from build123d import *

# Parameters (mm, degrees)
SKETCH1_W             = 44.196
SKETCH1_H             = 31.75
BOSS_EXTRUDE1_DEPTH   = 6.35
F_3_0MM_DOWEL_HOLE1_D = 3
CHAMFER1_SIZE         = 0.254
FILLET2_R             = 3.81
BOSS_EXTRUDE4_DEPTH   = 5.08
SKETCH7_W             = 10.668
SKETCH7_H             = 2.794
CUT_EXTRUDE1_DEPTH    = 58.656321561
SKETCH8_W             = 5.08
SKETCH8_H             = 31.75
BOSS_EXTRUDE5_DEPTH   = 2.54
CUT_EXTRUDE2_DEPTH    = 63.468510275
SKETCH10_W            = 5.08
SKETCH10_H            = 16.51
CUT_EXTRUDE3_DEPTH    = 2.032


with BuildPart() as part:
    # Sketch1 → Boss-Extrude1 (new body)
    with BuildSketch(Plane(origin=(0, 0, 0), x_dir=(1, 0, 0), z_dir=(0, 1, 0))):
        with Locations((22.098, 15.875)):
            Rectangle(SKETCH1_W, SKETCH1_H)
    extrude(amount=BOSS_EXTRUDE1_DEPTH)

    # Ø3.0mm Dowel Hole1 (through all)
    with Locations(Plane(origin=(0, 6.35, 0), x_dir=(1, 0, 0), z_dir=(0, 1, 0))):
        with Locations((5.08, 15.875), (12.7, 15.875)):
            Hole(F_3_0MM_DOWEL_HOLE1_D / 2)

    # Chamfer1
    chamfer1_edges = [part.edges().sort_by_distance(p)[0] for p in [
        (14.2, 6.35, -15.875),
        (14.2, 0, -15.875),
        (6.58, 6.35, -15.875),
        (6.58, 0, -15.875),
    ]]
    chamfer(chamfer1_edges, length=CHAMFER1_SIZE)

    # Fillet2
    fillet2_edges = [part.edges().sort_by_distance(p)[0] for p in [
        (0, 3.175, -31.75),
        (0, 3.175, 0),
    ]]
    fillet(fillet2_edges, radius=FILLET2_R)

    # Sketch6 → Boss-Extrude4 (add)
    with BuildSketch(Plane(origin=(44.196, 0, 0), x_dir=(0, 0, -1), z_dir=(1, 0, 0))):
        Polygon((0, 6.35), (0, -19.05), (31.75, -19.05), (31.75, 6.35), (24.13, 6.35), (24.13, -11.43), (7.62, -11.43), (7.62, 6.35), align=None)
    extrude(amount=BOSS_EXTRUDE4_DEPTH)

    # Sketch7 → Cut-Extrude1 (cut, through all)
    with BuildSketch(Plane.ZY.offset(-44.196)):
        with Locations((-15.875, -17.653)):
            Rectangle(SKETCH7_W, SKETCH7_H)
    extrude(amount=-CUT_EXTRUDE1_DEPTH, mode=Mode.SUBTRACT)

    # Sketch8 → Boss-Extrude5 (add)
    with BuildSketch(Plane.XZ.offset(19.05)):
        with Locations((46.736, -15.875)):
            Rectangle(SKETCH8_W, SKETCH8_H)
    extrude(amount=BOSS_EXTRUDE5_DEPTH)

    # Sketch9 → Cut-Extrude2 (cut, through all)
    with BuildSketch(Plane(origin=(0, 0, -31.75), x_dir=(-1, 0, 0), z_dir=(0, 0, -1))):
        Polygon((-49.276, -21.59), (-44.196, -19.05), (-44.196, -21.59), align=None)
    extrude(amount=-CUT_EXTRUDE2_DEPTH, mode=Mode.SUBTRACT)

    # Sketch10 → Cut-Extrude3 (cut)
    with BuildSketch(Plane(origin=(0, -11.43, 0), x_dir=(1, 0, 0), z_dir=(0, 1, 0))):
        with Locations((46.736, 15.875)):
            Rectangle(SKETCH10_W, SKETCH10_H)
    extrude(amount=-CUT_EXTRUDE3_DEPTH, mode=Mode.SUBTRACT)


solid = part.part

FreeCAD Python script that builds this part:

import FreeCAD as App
import Part
import Sketcher

V = App.Vector
Q = App.Units.Quantity


def edges_at(feature, points):
    """Names of the edges that pass closest to the given points."""
    edges = feature.Shape.Edges
    near = lambda p: min(range(len(edges)), key=lambda i: edges[i].distToShape(Part.Vertex(*p))[0])
    return sorted({f"Edge{near(p) + 1}" for p in points})


def add_polygon(sketch, points):
    """Adds a closed chain of lines whose ends are joined by coincident constraints."""
    first, n = sketch.GeometryCount, len(points)
    for a, b in zip(points, points[1:] + points[:1]):
        sketch.addGeometry(Part.LineSegment(App.Vector(*a, 0), App.Vector(*b, 0)), False)
    for i in range(n):
        sketch.addConstraint(Sketcher.Constraint("Coincident", first + i, 2, first + (i + 1) % n, 1))

doc = App.newDocument("Part")
body = doc.addObject("PartDesign::Body", "Body")

sketch1 = doc.addObject("Sketcher::SketchObject", "Sketch")
body.addObject(sketch1)
sketch1.AttachmentSupport = (doc.XZ_Plane, [""])
sketch1.MapMode = "FlatFace"
add_polygon(sketch1, [(0, -31.75), (0, 0), (44.196, 0), (44.196, -31.75)])
sketch1.addConstraint(Sketcher.Constraint("Vertical", 0))
sketch1.addConstraint(Sketcher.Constraint("Horizontal", 1))
sketch1.addConstraint(Sketcher.Constraint("Vertical", 2))
sketch1.addConstraint(Sketcher.Constraint("Horizontal", 3))
sketch1.addConstraint(Sketcher.Constraint("Coincident", 0, 2, -1, 1))
sketch1.addConstraint(Sketcher.Constraint("DistanceX", 1, 1, 1, 2, Q("1.74 in")))
sketch1.addConstraint(Sketcher.Constraint("DistanceY", 0, 1, 0, 2, Q("1.25 in")))
pad1 = doc.addObject("PartDesign::Pad", "Pad")
body.addObject(pad1)
pad1.Profile = sketch1
pad1.Length = Q("0.25 in")
pad1.Reversed = True

sketch2 = doc.addObject("Sketcher::SketchObject", "Sketch001")
body.addObject(sketch2)
sketch2.AttachmentSupport = (doc.XZ_Plane, [""])
sketch2.MapMode = "FlatFace"
sketch2.AttachmentOffset = App.Placement(V(0, 0, -0.25 * 25.4), App.Rotation())
sketch2.addGeometry(Part.Circle(V(5.08, -15.875, 0), V(0, 0, 1), 1.5), False)
sketch2.addGeometry(Part.Circle(V(12.7, -15.875, 0), V(0, 0, 1), 1.5), False)
sketch2.addConstraint(Sketcher.Constraint("Equal", 0, 1))
sketch2.addConstraint(Sketcher.Constraint("Horizontal", 0, 3, 1, 3))
sketch2.addConstraint(Sketcher.Constraint("DistanceX", -1, 1, 0, 3, Q("0.2 in")))
sketch2.addConstraint(Sketcher.Constraint("DistanceX", -1, 1, 1, 3, Q("0.5 in")))
sketch2.addConstraint(Sketcher.Constraint("Diameter", 0, Q("3 mm")))
sketch2.addConstraint(Sketcher.Constraint("DistanceY", 0, 3, -1, 1, Q("0.625 in")))
doc.recompute()
hole = doc.addObject("PartDesign::Hole", "Hole")
body.addObject(hole)
hole.Profile = sketch2
hole.ThreadType = "None"
hole.Diameter = 3
hole.DepthType = "ThroughAll"
hole.Reversed = True
doc.recompute()

chamfer = doc.addObject("PartDesign::Chamfer", "Chamfer")
body.addObject(chamfer)
chamfer.Base = (hole, edges_at(hole, [
    (14.2, 6.35, -15.875),
    (14.2, 0, -15.875),
    (6.58, 6.35, -15.875),
    (6.58, 0, -15.875),
]))
chamfer.Size = Q("0.01 in")
doc.recompute()

fillet = doc.addObject("PartDesign::Fillet", "Fillet")
body.addObject(fillet)
fillet.Base = (chamfer, edges_at(chamfer, [(0, 3.175, -31.75), (0, 3.175, 0)]))
fillet.Radius = Q("0.15 in")

sketch3 = doc.addObject("Sketcher::SketchObject", "Sketch002")
body.addObject(sketch3)
sketch3.AttachmentSupport = (doc.YZ_Plane, [""])
sketch3.MapMode = "FlatFace"
sketch3.AttachmentOffset = App.Placement(V(0, 0, 1.74 * 25.4), App.Rotation())
add_polygon(sketch3, [(6.35, 0), (-19.05, 0), (-19.05, -31.75), (6.35, -31.75), (6.35, -24.13), (-11.43, -24.13), (-11.43, -7.62), (6.35, -7.62)])
sketch3.addConstraint(Sketcher.Constraint("Horizontal", 0))
sketch3.addConstraint(Sketcher.Constraint("Vertical", 1))
sketch3.addConstraint(Sketcher.Constraint("Horizontal", 2))
sketch3.addConstraint(Sketcher.Constraint("Vertical", 3))
sketch3.addConstraint(Sketcher.Constraint("Horizontal", 4))
sketch3.addConstraint(Sketcher.Constraint("Vertical", 5))
sketch3.addConstraint(Sketcher.Constraint("Horizontal", 6))
sketch3.addConstraint(Sketcher.Constraint("Vertical", 7))
sketch3.addConstraint(Sketcher.Constraint("PointOnObject", 0, 2, -1))
sketch3.addConstraint(Sketcher.Constraint("Vertical", 3, 2, 6, 2))
sketch3.addConstraint(Sketcher.Constraint("Equal", 3, 7))
sketch3.addConstraint(Sketcher.Constraint("DistanceX", 0, 2, 0, 1, Q("1 in")))
sketch3.addConstraint(Sketcher.Constraint("DistanceX", 4, 2, 4, 1, Q("0.7 in")))
sketch3.addConstraint(Sketcher.Constraint("DistanceY", 3, 1, 3, 2, Q("0.3 in")))
sketch3.addConstraint(Sketcher.Constraint("DistanceY", 1, 2, 1, 1, Q("1.25 in")))
sketch3.addConstraint(Sketcher.Constraint("DistanceX", 0, 2, -1, 1, Q("0.75 in")))
pad2 = doc.addObject("PartDesign::Pad", "Pad001")
body.addObject(pad2)
pad2.Profile = sketch3
pad2.Length = Q("0.2 in")

sketch4 = doc.addObject("Sketcher::SketchObject", "Sketch003")
body.addObject(sketch4)
sketch4.AttachmentSupport = (doc.YZ_Plane, [""])
sketch4.MapMode = "FlatFace"
sketch4.AttachmentOffset = App.Placement(V(0, 0, 1.74 * 25.4), App.Rotation())
add_polygon(sketch4, [(-16.256, -21.209), (-19.05, -21.209), (-19.05, -10.541), (-16.256, -10.541)])
sketch4.addConstraint(Sketcher.Constraint("Horizontal", 0))
sketch4.addConstraint(Sketcher.Constraint("Vertical", 1))
sketch4.addConstraint(Sketcher.Constraint("Horizontal", 2))
sketch4.addConstraint(Sketcher.Constraint("Vertical", 3))
sketch4.addConstraint(Sketcher.Constraint("DistanceX", 0, 2, 0, 1, Q("0.11 in")))
sketch4.addConstraint(Sketcher.Constraint("DistanceY", 1, 1, 1, 2, Q("0.42 in")))
sketch4.addConstraint(Sketcher.Constraint("DistanceX", 0, 2, -1, 1, Q("0.75 in")))
sketch4.addConstraint(Sketcher.Constraint("DistanceY", 0, 2, -1, 1, Q("0.835 in")))
pocket1 = doc.addObject("PartDesign::Pocket", "Pocket")
body.addObject(pocket1)
pocket1.Profile = sketch4
pocket1.Type = "ThroughAll"
pocket1.Reversed = True

sketch5 = doc.addObject("Sketcher::SketchObject", "Sketch004")
body.addObject(sketch5)
sketch5.AttachmentSupport = (doc.XZ_Plane, [""])
sketch5.MapMode = "FlatFace"
sketch5.AttachmentOffset = App.Placement(V(0, 0, 0.75 * 25.4), App.Rotation())
add_polygon(sketch5, [(44.196, 0), (44.196, -31.75), (49.276, -31.75), (49.276, 0)])
sketch5.addConstraint(Sketcher.Constraint("Vertical", 0))
sketch5.addConstraint(Sketcher.Constraint("Horizontal", 1))
sketch5.addConstraint(Sketcher.Constraint("Vertical", 2))
sketch5.addConstraint(Sketcher.Constraint("Horizontal", 3))
sketch5.addConstraint(Sketcher.Constraint("PointOnObject", 2, 2, -1))
sketch5.addConstraint(Sketcher.Constraint("DistanceX", 1, 1, 1, 2, Q("0.2 in")))
sketch5.addConstraint(Sketcher.Constraint("DistanceY", 0, 2, 0, 1, Q("1.25 in")))
sketch5.addConstraint(Sketcher.Constraint("DistanceX", -1, 1, 0, 2, Q("1.74 in")))
pad3 = doc.addObject("PartDesign::Pad", "Pad002")
body.addObject(pad3)
pad3.Profile = sketch5
pad3.Length = Q("0.1 in")

sketch6 = doc.addObject("Sketcher::SketchObject", "Sketch005")
body.addObject(sketch6)
sketch6.AttachmentSupport = (doc.XY_Plane, [""])
sketch6.MapMode = "FlatFace"
sketch6.AttachmentOffset = App.Placement(V(0, 0, -1.25 * 25.4), App.Rotation())
add_polygon(sketch6, [(44.196, -19.05), (49.276, -21.59), (44.196, -21.59)])
sketch6.addConstraint(Sketcher.Constraint("Horizontal", 1))
sketch6.addConstraint(Sketcher.Constraint("Vertical", 2))
sketch6.addConstraint(Sketcher.Constraint("DistanceX", 1, 2, 1, 1, Q("0.2 in")))
sketch6.addConstraint(Sketcher.Constraint("DistanceY", 2, 1, 2, 2, Q("0.1 in")))
sketch6.addConstraint(Sketcher.Constraint("DistanceX", -1, 1, 0, 2, Q("1.94 in")))
sketch6.addConstraint(Sketcher.Constraint("DistanceY", 0, 2, -1, 1, Q("0.85 in")))
pocket2 = doc.addObject("PartDesign::Pocket", "Pocket001")
body.addObject(pocket2)
pocket2.Profile = sketch6
pocket2.Type = "ThroughAll"
pocket2.Reversed = True

sketch7 = doc.addObject("Sketcher::SketchObject", "Sketch006")
body.addObject(sketch7)
sketch7.AttachmentSupport = (doc.XZ_Plane, [""])
sketch7.MapMode = "FlatFace"
sketch7.AttachmentOffset = App.Placement(V(0, 0, 0.45 * 25.4), App.Rotation())
add_polygon(sketch7, [(44.196, -24.13), (44.196, -7.62), (49.276, -7.62), (49.276, -24.13)])
sketch7.addConstraint(Sketcher.Constraint("Vertical", 0))
sketch7.addConstraint(Sketcher.Constraint("Horizontal", 1))
sketch7.addConstraint(Sketcher.Constraint("Vertical", 2))
sketch7.addConstraint(Sketcher.Constraint("Horizontal", 3))
sketch7.addConstraint(Sketcher.Constraint("DistanceX", 1, 1, 1, 2, Q("0.2 in")))
sketch7.addConstraint(Sketcher.Constraint("DistanceY", 0, 1, 0, 2, Q("0.65 in")))
sketch7.addConstraint(Sketcher.Constraint("DistanceY", 0, 2, -1, 1, Q("0.3 in")))
sketch7.addConstraint(Sketcher.Constraint("DistanceX", -1, 1, 0, 2, Q("1.74 in")))
pocket3 = doc.addObject("PartDesign::Pocket", "Pocket002")
body.addObject(pocket3)
pocket3.Profile = sketch7
pocket3.Length = Q("0.08 in")
pocket3.Reversed = True

doc.recompute()
